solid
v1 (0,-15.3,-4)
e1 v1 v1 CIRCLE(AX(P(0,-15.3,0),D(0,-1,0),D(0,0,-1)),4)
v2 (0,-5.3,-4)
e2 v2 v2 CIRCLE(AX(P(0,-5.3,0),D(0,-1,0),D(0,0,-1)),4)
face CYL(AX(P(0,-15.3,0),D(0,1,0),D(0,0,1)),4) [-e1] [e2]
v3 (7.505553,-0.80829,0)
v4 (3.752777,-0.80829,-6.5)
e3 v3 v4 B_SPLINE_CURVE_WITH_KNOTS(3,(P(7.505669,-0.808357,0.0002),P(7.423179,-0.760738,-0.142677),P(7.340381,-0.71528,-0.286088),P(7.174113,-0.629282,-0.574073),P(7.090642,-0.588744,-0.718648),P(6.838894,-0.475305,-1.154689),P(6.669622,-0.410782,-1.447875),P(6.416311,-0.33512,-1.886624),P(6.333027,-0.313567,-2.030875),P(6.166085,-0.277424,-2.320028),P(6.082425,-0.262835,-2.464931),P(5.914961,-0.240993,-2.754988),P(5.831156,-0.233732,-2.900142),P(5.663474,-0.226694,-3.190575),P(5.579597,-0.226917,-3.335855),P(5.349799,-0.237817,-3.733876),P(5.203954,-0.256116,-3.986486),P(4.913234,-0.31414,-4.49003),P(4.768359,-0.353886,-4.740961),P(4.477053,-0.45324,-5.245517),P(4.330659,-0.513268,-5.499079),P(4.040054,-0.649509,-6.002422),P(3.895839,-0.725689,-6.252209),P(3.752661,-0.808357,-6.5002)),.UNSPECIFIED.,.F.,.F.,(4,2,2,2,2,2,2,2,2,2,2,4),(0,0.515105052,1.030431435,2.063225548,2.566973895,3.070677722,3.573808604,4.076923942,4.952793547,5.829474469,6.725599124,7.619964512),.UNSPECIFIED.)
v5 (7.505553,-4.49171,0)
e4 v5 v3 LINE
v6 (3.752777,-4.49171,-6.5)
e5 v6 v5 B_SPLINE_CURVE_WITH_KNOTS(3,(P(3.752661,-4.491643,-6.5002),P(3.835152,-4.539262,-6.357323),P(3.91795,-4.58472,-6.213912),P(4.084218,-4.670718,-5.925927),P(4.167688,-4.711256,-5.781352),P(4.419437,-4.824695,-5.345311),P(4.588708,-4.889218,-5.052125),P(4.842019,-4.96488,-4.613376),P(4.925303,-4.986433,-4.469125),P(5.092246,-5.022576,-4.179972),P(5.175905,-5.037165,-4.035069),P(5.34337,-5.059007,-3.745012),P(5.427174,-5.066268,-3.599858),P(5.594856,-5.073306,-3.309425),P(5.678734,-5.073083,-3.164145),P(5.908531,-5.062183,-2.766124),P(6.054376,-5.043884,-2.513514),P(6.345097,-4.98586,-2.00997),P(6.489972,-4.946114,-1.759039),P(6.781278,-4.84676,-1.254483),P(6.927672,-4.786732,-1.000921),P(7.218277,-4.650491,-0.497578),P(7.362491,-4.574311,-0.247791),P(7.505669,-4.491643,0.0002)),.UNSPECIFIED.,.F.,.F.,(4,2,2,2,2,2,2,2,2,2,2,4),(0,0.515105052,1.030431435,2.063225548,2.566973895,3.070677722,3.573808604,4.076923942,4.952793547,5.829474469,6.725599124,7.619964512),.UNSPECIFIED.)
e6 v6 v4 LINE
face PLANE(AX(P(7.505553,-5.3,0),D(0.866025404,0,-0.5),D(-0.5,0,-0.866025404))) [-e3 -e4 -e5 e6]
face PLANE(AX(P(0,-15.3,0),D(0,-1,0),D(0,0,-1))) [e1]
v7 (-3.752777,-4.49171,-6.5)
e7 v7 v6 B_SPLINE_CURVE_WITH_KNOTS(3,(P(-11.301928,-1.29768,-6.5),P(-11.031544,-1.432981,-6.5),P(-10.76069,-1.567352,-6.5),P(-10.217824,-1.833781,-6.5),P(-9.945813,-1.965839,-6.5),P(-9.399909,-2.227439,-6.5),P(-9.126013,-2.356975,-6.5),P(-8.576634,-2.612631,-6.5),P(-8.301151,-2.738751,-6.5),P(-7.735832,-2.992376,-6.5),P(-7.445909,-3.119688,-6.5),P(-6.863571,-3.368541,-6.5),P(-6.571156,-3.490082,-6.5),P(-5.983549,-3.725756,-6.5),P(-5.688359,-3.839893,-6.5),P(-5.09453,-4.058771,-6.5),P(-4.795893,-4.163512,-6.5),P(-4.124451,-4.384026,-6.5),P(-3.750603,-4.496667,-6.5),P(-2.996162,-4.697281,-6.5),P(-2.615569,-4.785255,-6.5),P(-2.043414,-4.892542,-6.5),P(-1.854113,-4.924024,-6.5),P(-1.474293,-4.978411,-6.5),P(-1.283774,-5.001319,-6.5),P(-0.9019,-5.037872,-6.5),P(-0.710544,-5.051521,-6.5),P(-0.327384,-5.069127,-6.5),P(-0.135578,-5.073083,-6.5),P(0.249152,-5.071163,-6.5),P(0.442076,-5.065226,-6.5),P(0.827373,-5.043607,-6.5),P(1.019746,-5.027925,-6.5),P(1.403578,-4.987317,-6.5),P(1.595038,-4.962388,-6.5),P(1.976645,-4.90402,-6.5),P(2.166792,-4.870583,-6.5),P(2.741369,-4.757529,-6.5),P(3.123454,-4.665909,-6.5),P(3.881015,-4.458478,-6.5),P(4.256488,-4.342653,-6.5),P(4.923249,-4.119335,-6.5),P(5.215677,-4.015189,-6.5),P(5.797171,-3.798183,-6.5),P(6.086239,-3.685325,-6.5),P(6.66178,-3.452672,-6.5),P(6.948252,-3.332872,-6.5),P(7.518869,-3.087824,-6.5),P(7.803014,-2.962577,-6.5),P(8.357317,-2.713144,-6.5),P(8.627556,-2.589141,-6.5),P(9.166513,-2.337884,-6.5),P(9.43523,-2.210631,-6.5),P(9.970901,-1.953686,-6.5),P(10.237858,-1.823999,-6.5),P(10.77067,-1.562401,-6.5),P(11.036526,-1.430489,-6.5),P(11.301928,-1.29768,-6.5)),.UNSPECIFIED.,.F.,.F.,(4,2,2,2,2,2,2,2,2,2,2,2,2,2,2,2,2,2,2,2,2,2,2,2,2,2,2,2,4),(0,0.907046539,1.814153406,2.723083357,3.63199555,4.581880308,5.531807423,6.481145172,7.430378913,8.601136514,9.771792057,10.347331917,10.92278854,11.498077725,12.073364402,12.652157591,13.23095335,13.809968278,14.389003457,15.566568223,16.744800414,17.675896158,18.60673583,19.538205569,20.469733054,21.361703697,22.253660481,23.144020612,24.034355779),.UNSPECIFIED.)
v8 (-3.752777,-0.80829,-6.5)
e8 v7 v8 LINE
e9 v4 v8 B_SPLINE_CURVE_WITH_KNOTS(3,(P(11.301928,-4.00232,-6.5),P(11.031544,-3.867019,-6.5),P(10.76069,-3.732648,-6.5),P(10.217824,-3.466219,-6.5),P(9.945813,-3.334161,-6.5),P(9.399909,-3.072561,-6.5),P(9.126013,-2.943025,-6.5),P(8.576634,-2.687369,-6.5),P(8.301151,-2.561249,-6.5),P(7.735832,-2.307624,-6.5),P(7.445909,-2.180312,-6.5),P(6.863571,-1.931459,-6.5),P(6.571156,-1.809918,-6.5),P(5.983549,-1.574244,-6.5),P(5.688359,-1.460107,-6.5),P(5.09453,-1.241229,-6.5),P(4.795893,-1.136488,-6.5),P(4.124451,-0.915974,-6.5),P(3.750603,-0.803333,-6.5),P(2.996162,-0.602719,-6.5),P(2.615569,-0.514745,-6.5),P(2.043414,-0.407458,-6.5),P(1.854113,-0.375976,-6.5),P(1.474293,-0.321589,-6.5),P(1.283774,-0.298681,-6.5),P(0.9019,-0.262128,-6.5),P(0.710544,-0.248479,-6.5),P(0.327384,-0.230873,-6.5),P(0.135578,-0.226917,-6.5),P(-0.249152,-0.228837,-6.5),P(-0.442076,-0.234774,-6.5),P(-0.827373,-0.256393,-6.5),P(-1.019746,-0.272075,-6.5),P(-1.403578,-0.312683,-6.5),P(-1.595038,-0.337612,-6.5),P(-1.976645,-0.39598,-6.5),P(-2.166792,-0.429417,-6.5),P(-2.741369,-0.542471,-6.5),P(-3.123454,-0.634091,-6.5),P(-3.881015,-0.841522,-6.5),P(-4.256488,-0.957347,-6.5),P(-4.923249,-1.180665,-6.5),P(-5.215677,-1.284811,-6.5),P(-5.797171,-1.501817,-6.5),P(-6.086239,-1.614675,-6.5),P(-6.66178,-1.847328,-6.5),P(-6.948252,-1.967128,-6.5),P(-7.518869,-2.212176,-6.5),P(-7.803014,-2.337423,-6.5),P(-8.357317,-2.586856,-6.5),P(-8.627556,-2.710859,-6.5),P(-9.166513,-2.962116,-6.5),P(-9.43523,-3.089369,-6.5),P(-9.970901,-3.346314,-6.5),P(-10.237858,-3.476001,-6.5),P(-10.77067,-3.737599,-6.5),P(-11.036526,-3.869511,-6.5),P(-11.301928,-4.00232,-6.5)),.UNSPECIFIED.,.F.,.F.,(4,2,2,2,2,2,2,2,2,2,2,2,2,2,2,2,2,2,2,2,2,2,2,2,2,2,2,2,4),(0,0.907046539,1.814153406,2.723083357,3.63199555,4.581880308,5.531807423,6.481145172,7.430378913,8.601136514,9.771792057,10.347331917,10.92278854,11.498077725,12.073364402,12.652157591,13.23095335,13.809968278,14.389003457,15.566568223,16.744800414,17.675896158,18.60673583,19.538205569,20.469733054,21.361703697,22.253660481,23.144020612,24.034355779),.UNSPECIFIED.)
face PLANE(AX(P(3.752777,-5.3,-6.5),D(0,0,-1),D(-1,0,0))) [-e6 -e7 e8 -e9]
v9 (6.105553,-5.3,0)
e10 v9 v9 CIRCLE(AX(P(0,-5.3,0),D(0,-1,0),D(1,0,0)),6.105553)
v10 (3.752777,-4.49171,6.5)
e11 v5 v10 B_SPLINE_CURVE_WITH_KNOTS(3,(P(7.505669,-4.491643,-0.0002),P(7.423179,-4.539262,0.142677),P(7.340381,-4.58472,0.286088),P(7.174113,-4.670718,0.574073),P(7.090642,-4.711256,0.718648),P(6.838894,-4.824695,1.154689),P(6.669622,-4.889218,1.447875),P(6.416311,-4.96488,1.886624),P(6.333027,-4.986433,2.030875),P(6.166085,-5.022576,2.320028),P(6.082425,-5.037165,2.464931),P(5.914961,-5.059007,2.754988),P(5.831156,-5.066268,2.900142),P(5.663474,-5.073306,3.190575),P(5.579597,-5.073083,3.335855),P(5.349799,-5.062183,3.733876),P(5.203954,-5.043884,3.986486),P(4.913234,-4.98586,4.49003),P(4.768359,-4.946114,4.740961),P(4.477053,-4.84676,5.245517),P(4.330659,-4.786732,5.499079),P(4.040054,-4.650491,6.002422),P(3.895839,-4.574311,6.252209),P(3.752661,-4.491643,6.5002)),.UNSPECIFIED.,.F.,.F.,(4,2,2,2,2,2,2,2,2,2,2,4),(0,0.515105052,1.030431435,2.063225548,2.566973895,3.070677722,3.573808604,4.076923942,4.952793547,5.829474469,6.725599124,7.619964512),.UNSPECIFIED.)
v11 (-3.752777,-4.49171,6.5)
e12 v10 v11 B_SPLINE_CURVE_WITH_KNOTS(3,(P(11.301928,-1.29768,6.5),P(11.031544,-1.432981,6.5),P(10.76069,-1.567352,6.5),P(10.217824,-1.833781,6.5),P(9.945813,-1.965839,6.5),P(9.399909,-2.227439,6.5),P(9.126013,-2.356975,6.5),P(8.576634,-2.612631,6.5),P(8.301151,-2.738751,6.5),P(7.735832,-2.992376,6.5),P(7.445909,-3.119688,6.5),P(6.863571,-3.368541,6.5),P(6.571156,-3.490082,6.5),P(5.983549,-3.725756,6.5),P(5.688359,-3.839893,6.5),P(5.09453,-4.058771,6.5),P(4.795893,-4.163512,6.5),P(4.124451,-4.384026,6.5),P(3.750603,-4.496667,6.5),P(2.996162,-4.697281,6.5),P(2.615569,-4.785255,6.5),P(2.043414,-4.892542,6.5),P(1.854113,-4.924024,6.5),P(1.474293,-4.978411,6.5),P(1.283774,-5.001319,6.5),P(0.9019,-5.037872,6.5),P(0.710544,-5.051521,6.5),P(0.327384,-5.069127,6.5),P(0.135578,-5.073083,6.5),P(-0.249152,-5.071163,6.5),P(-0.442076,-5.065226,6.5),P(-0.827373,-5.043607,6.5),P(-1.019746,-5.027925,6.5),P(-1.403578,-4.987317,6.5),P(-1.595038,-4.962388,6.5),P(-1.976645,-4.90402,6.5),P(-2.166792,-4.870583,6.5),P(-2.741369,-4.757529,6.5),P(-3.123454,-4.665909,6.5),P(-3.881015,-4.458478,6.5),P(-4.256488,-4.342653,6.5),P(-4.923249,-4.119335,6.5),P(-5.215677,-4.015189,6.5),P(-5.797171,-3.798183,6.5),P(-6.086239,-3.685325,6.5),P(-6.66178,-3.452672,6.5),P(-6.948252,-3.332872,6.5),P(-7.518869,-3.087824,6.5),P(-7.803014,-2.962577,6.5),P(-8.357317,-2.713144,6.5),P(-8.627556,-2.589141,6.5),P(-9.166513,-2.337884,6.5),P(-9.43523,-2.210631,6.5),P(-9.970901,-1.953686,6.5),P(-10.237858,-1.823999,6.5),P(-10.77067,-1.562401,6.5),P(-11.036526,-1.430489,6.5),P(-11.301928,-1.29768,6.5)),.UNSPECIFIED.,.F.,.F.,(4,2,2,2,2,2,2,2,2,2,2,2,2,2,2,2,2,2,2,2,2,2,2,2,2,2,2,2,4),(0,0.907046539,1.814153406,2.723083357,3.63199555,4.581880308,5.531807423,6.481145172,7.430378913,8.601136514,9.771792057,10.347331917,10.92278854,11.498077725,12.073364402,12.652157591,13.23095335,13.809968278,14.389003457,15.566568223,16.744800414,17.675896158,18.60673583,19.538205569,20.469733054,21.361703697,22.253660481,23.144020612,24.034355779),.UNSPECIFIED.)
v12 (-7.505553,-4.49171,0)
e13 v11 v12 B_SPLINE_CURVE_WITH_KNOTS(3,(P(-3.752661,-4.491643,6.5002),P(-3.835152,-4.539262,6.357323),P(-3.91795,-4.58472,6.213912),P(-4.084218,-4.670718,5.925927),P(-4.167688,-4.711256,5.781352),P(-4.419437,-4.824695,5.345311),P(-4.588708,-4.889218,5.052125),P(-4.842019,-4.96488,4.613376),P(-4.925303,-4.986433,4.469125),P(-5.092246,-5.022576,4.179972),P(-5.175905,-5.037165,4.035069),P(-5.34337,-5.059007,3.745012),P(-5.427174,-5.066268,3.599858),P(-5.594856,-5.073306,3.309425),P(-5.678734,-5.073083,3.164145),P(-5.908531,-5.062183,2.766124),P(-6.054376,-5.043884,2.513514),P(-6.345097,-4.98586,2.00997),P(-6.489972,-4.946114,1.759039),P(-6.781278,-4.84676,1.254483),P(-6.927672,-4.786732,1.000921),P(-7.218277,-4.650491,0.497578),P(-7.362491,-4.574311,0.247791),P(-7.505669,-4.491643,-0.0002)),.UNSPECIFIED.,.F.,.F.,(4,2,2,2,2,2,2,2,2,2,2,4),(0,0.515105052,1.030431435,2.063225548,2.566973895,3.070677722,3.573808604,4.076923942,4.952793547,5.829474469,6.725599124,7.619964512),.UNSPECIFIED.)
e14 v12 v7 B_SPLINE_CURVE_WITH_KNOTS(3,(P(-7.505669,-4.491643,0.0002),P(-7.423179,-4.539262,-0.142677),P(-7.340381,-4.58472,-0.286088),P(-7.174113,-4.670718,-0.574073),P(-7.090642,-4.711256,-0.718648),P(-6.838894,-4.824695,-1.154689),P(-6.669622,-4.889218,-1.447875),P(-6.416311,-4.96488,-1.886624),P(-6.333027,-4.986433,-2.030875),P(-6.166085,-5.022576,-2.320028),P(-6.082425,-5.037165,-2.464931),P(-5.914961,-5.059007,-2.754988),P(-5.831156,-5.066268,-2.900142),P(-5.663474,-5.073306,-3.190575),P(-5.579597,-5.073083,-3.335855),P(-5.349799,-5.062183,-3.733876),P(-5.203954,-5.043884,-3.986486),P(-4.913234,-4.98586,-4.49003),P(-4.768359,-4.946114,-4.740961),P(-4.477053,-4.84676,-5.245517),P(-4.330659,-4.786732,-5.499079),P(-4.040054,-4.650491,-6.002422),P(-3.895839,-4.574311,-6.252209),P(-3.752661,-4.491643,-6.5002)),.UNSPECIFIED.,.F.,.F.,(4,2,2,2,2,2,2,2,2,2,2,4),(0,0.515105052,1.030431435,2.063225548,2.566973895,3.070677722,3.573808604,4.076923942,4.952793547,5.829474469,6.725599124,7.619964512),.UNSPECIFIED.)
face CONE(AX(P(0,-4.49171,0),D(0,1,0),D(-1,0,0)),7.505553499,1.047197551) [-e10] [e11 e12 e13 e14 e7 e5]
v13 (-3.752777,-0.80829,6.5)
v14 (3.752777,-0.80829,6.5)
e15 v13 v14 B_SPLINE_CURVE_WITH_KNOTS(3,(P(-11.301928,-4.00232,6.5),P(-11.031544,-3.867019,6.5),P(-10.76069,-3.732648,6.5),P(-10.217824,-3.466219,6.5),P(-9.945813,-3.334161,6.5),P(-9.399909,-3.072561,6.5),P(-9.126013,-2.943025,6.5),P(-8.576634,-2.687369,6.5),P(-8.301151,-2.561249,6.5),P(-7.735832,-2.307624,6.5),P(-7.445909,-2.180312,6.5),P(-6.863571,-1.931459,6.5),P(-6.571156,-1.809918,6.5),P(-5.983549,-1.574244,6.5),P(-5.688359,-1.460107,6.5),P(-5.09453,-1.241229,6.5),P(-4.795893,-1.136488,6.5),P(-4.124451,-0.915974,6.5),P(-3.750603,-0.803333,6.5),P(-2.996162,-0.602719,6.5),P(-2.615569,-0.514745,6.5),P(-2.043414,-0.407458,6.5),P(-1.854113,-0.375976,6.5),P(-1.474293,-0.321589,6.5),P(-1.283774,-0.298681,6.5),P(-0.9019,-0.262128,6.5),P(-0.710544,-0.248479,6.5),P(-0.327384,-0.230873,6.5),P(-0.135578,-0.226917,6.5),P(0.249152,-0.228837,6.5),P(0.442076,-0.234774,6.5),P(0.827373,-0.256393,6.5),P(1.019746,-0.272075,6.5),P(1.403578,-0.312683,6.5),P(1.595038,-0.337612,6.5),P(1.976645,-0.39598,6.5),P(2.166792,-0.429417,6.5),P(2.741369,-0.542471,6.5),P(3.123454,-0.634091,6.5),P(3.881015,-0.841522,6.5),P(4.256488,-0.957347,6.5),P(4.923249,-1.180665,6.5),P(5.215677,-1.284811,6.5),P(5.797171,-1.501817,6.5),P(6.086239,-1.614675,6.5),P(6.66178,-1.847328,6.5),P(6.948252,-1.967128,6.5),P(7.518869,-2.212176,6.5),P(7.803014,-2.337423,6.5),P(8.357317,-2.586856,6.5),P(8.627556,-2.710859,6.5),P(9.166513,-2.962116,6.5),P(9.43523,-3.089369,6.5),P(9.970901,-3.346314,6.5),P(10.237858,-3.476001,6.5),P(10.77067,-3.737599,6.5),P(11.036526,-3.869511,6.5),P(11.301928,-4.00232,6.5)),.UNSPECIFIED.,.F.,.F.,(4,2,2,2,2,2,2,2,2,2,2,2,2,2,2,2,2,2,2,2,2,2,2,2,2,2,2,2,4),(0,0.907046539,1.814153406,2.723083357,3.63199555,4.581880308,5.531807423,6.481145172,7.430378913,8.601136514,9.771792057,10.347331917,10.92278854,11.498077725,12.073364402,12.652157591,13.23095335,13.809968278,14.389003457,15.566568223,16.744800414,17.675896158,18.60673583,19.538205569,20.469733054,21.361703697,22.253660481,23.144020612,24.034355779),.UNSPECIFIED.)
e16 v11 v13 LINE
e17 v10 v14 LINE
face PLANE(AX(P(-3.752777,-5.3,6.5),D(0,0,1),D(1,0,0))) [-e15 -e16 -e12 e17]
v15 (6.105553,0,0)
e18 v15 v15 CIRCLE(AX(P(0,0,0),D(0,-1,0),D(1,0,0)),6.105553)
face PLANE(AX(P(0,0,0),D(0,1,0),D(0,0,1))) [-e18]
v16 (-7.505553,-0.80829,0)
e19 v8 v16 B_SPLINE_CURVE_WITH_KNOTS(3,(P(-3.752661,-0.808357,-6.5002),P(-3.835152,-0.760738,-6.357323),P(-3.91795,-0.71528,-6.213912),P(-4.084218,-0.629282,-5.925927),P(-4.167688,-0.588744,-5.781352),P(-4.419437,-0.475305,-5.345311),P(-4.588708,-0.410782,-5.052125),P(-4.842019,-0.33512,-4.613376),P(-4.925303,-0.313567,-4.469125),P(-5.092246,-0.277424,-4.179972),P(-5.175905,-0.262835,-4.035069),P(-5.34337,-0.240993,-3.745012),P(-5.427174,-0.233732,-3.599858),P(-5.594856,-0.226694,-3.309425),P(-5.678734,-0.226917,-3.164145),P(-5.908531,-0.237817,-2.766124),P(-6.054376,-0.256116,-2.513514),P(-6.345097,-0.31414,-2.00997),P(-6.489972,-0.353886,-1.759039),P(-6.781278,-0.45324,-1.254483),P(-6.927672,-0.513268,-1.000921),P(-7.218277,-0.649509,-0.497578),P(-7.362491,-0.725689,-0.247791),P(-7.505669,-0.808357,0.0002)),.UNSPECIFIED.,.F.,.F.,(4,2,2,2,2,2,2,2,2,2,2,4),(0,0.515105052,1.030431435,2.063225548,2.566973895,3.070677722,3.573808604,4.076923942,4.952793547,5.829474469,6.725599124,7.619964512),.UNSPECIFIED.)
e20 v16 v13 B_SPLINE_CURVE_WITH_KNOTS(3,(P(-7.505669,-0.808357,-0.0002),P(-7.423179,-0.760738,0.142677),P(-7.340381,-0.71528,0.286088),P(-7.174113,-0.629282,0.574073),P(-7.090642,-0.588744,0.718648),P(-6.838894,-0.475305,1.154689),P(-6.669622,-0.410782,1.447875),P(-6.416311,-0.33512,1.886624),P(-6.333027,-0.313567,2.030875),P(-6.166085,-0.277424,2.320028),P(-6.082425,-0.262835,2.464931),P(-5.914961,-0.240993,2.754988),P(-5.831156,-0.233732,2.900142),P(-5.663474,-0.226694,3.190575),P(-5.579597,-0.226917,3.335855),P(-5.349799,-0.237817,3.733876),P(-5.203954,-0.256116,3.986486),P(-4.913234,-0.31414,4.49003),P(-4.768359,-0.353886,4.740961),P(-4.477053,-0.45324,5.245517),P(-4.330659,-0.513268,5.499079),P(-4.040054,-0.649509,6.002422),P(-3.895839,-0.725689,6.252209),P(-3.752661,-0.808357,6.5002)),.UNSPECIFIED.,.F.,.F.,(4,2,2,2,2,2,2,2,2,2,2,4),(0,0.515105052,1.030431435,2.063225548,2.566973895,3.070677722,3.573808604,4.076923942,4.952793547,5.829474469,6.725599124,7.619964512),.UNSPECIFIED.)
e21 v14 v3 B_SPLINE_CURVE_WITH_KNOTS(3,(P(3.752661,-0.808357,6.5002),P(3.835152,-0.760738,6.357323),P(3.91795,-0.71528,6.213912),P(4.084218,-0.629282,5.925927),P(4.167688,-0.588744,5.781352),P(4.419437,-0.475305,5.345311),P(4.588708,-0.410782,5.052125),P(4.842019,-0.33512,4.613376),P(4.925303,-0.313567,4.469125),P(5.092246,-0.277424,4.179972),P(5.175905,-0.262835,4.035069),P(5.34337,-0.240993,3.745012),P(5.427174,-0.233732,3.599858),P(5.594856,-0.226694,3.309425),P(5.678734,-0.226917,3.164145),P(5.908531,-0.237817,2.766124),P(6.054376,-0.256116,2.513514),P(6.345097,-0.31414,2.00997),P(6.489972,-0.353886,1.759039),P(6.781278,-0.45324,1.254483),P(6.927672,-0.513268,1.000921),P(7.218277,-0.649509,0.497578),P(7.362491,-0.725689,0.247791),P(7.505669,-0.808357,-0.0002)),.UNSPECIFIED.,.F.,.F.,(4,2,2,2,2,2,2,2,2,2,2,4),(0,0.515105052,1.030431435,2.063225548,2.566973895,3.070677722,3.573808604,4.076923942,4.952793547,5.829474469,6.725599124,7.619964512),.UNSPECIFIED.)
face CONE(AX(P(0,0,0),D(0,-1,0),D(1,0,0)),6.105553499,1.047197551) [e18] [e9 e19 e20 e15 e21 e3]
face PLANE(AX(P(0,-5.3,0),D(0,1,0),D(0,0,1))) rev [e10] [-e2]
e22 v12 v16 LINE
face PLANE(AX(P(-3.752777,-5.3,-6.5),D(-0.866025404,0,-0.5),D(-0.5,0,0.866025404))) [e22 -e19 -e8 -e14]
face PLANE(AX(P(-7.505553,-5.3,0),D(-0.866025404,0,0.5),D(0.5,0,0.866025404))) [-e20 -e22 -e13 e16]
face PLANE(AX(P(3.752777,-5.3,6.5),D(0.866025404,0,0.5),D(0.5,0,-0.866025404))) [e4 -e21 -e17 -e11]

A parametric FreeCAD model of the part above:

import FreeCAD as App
import Part
import Sketcher
Q = App.Units.Quantity

doc = App.newDocument("Part")
body = doc.addObject("PartDesign::Body", "Body")

# Sketch on XZ plane
sketch1 = body.newObject("Sketcher::SketchObject", "Sketch")
sketch1.AttachmentSupport = (doc.getObject("XZ_Plane"), [""])
sketch1.MapMode = "FlatFace"
sketch1.addGeometry([
    Part.LineSegment(App.Vector(8, 0, 0), App.Vector(4, -6, 0)),  # 0
    Part.LineSegment(App.Vector(4, -6, 0), App.Vector(-4, -6, 0)),  # 1
    Part.LineSegment(App.Vector(-4, -6, 0), App.Vector(-8, 0, 0)),  # 2
    Part.LineSegment(App.Vector(-8, 0, 0), App.Vector(-4, 6, 0)),  # 3
    Part.LineSegment(App.Vector(-4, 6, 0), App.Vector(4, 6, 0)),  # 4
    Part.LineSegment(App.Vector(4, 6, 0), App.Vector(8, 0, 0)),  # 5
], False)
sketch1.addConstraint([
    Sketcher.Constraint("Coincident", 0, 2, 1, 1),
    Sketcher.Constraint("Coincident", 1, 2, 2, 1),
    Sketcher.Constraint("Coincident", 2, 2, 3, 1),
    Sketcher.Constraint("Coincident", 3, 2, 4, 1),
    Sketcher.Constraint("Coincident", 4, 2, 5, 1),
    Sketcher.Constraint("Coincident", 5, 2, 0, 1),
    Sketcher.Constraint("Horizontal", 1),
    Sketcher.Constraint("Horizontal", 4),
    Sketcher.Constraint("Symmetric", 0, 2, 3, 2, -1, 1),
    Sketcher.Constraint("Symmetric", 2, 2, 5, 2, -1, 1),
    Sketcher.Constraint("PointOnObject", 2, 2, -1),
    Sketcher.Constraint("Parallel", 2, 5),
    Sketcher.Constraint("Vertical", 1, 2, 3, 2),
    Sketcher.Constraint("Angle", 0, Q("-120 deg")),
    Sketcher.Constraint("DistanceY", 1, 2, 3, 2, 13.0),
    Sketcher.Constraint("DistanceX", 1, 2, 1, 1, 7.505554),
])
pad1 = body.newObject("PartDesign::Pad", "Pad")
pad1.Profile = sketch1
pad1.Length = 5.3

# Sketch on XZ plane
sketch2 = body.newObject("Sketcher::SketchObject", "Sketch001")
sketch2.AttachmentSupport = (doc.getObject("XZ_Plane"), [""])
sketch2.MapMode = "FlatFace"
sketch2.AttachmentOffset = App.Placement(App.Vector(0, 0, 5.3), App.Rotation())
sketch2.addGeometry(Part.Circle(App.Vector(0, 0, 0), App.Vector(0, 0, 1), 4), False)
sketch2.addConstraint([
    Sketcher.Constraint("Coincident", 0, 3, -1, 1),
    Sketcher.Constraint("Diameter", 0, 8.0),
])
pad2 = body.newObject("PartDesign::Pad", "Pad001")
pad2.Profile = sketch2
pad2.Length = 10

# Sketch on XY plane
sketch3 = body.newObject("Sketcher::SketchObject", "Sketch002")
sketch3.AttachmentSupport = (doc.getObject("XY_Plane"), [""])
sketch3.MapMode = "FlatFace"
sketch3.addGeometry([
    Part.LineSegment(App.Vector(7.5, 0, 0), App.Vector(6.1, 0, 0)),  # 0
    Part.LineSegment(App.Vector(6.1, 0, 0), App.Vector(7.5, -0.8, 0)),  # 1
    Part.LineSegment(App.Vector(7.5, -0.8, 0), App.Vector(7.5, 0, 0)),  # 2
    Part.LineSegment(App.Vector(7.5, -5.3, 0), App.Vector(7.5, -4.5, 0)),  # 3
    Part.LineSegment(App.Vector(7.5, -4.5, 0), App.Vector(6.1, -5.3, 0)),  # 4
    Part.LineSegment(App.Vector(6.1, -5.3, 0), App.Vector(7.5, -5.3, 0)),  # 5
], False)
sketch3.addConstraint([
    Sketcher.Constraint("Coincident", 0, 2, 1, 1),
    Sketcher.Constraint("Coincident", 1, 2, 2, 1),
    Sketcher.Constraint("Coincident", 2, 2, 0, 1),
    Sketcher.Constraint("Coincident", 3, 2, 4, 1),
    Sketcher.Constraint("Coincident", 4, 2, 5, 1),
    Sketcher.Constraint("Coincident", 5, 2, 3, 1),
    Sketcher.Constraint("Horizontal", 0),
    Sketcher.Constraint("Vertical", 2),
    Sketcher.Constraint("Vertical", 3),
    Sketcher.Constraint("Horizontal", 5),
    Sketcher.Constraint("PointOnObject", 0, 2, -1),
    Sketcher.Constraint("Vertical", 2, 2, 3, 2),
    Sketcher.Constraint("Vertical", 0, 2, 4, 2),
    Sketcher.Constraint("Equal", 2, 3),
    Sketcher.Constraint("Angle", 1, Q("-30 deg")),
    Sketcher.Constraint("DistanceX", 0, 2, 0, 1, 1.4),
    Sketcher.Constraint("DistanceY", 4, 2, -1, 1, 5.3),
    Sketcher.Constraint("DistanceX", -1, 1, 0, 2, 6.105553),
])
groove = body.newObject("PartDesign::Groove", "Groove")
groove.Profile = sketch3
groove.ReferenceAxis = (sketch3, ["V_Axis"])
groove.Angle = 360

doc.recompute()
